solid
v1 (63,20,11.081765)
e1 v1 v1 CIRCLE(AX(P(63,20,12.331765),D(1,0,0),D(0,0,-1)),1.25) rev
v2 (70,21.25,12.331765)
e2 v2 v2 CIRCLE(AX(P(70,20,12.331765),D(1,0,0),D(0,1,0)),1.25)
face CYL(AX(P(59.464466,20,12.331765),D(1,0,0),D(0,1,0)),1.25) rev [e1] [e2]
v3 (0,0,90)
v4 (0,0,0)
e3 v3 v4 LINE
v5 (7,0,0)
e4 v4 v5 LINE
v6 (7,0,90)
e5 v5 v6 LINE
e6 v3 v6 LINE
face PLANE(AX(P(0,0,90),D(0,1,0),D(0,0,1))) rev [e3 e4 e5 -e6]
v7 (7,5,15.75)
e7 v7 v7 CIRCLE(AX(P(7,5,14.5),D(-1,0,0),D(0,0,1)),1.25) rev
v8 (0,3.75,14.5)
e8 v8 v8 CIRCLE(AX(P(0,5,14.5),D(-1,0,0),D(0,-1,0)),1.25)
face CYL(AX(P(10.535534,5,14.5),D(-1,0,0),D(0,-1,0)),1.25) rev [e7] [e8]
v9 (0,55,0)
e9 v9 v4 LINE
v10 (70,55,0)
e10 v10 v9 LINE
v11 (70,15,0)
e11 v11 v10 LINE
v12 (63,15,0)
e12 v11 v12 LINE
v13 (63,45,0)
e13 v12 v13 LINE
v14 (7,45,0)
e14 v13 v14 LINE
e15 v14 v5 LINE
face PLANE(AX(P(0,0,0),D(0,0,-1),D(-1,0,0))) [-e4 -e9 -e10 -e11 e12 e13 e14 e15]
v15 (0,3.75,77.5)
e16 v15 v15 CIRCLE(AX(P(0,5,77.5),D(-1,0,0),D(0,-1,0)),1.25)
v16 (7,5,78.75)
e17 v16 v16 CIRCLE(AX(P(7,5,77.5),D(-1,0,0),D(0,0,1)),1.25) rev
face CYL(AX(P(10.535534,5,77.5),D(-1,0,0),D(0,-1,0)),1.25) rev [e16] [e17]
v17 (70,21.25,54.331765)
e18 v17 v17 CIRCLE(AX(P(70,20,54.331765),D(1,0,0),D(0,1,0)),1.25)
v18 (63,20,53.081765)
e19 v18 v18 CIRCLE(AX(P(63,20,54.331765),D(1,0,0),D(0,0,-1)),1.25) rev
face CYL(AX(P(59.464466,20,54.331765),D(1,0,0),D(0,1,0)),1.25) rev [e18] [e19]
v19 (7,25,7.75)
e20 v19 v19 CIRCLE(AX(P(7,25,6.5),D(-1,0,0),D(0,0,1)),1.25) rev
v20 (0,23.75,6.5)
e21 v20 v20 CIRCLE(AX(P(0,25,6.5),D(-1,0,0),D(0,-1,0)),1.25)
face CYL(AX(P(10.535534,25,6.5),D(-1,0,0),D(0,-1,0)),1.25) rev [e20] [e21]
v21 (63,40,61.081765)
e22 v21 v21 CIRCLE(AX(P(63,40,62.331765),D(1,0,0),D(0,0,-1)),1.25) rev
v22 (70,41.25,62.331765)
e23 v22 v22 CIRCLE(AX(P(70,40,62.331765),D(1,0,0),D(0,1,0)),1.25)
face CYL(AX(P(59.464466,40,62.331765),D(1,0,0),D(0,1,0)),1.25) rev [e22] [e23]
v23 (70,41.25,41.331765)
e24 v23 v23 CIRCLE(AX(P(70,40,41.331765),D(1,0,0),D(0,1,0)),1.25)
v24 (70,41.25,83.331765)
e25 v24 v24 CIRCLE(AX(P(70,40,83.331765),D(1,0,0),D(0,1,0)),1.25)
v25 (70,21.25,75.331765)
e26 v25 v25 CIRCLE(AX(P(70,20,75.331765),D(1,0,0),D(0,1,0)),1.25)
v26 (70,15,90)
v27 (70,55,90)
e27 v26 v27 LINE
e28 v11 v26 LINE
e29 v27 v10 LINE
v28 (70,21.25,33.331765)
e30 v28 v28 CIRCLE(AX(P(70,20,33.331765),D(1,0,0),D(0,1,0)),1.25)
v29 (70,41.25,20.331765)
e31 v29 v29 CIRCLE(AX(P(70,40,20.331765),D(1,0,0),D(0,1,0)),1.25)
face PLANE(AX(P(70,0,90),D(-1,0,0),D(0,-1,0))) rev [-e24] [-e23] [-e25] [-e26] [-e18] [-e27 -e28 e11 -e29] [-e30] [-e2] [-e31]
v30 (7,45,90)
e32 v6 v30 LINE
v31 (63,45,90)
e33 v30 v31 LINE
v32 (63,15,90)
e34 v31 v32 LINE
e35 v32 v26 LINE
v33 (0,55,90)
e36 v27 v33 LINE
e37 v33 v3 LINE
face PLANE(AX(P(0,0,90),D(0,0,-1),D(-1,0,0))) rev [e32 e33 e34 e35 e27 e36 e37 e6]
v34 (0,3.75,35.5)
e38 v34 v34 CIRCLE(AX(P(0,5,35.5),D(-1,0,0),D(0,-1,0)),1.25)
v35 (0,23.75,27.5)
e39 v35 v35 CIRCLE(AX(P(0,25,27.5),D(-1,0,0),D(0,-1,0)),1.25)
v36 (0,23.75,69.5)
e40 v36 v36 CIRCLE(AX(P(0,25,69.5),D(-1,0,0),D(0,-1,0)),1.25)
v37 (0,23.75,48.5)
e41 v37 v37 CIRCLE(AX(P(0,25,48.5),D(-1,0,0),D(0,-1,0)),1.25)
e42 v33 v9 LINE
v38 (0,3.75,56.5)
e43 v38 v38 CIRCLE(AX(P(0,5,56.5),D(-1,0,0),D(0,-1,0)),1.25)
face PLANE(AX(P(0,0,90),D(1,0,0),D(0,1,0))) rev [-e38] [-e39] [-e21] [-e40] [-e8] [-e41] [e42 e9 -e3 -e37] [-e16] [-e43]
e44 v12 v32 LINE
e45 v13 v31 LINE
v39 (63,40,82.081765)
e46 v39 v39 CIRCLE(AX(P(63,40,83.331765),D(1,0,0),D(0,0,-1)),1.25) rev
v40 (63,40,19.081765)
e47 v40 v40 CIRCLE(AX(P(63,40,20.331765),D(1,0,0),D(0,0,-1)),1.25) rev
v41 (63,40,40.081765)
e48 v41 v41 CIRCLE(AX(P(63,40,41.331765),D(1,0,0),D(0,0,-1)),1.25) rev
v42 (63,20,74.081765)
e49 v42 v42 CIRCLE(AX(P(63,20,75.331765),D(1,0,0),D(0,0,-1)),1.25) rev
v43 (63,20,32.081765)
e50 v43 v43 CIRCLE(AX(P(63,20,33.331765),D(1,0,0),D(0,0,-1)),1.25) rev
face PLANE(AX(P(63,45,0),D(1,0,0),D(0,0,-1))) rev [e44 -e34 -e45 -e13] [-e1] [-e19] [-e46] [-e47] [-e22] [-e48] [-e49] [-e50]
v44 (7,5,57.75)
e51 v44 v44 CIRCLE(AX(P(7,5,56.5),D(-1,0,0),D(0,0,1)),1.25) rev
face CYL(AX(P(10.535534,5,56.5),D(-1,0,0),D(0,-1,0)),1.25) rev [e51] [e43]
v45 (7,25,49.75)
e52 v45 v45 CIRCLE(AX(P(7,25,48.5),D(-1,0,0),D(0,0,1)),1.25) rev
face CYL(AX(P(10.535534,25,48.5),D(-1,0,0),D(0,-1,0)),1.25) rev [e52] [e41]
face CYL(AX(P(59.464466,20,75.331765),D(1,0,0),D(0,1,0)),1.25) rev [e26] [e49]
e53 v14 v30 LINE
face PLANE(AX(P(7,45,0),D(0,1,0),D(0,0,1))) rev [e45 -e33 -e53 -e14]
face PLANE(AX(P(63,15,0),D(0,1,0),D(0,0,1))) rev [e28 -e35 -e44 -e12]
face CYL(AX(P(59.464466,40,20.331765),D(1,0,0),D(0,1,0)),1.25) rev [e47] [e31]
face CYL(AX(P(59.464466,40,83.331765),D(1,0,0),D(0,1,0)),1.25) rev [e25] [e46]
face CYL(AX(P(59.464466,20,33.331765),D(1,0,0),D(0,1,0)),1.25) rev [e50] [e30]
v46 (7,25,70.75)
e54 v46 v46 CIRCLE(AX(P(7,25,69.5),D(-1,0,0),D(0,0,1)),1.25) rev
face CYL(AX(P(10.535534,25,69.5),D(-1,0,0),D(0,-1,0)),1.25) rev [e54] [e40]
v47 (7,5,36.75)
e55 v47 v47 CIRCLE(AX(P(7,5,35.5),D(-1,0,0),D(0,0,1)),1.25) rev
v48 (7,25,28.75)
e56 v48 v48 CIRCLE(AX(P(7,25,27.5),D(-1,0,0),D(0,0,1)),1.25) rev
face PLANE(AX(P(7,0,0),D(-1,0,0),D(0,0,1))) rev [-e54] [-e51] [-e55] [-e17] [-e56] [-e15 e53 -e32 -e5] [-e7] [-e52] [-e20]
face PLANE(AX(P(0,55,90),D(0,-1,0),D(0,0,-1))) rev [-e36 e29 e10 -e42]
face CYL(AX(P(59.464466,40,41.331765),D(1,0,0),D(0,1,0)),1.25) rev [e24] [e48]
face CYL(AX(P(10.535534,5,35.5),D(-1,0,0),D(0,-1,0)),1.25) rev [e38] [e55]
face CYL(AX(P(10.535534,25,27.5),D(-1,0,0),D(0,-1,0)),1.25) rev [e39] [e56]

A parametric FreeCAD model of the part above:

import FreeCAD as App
import Part
import Sketcher
from FreeCAD import Vector
Q = App.Units.Quantity


def add_polygon(sketch, points):
    """Adds a closed chain of lines whose ends are joined by coincident constraints."""
    first, n = sketch.GeometryCount, len(points)
    for a, b in zip(points, points[1:] + points[:1]):
        sketch.addGeometry(Part.LineSegment(App.Vector(*a, 0), App.Vector(*b, 0)), False)
    for i in range(n):
        sketch.addConstraint(Sketcher.Constraint("Coincident", first + i, 2, first + (i + 1) % n, 1))

doc = App.newDocument("Part")
body = doc.addObject("PartDesign::Body", "Body")

# Sketch on XY plane
sketch1 = body.newObject("Sketcher::SketchObject", "Sketch")
sketch1.AttachmentSupport = (doc.getObject("XY_Plane"), [""])
sketch1.MapMode = "FlatFace"
add_polygon(sketch1, [(0, 55), (0, 0), (70, 0), (70, 55)])  # lines 0-3
sketch1.addConstraint([
    Sketcher.Constraint("Vertical", 0),
    Sketcher.Constraint("Horizontal", 1),
    Sketcher.Constraint("Vertical", 2),
    Sketcher.Constraint("Horizontal", 3),
    Sketcher.Constraint("Coincident", 0, 2, -1, 1),
    Sketcher.Constraint("DistanceX", 1, 1, 1, 2, Q("70 mm")),
    Sketcher.Constraint("DistanceY", 0, 2, 0, 1, Q("55 mm")),
])
pad1 = body.newObject("PartDesign::Pad", "Pad")
pad1.Profile = sketch1
pad1.Length = 90

# Sketch on XY plane
sketch2 = body.newObject("Sketcher::SketchObject", "Sketch001")
sketch2.AttachmentSupport = (doc.getObject("XY_Plane"), [""])
sketch2.MapMode = "FlatFace"
sketch2.AttachmentOffset = App.Placement(Vector(0, 0, 90), App.Rotation())
add_polygon(sketch2, [(7, 45), (7, 0), (70, 0), (70, 15), (63, 15), (63, 45)])  # lines 0-5
sketch2.addConstraint([
    Sketcher.Constraint("Vertical", 0),
    Sketcher.Constraint("Horizontal", 1),
    Sketcher.Constraint("Vertical", 2),
    Sketcher.Constraint("Horizontal", 3),
    Sketcher.Constraint("Vertical", 4),
    Sketcher.Constraint("Horizontal", 5),
    Sketcher.Constraint("PointOnObject", 0, 2, -1),
    Sketcher.Constraint("DistanceX", 1, 1, 1, 2, Q("63 mm")),
    Sketcher.Constraint("DistanceX", 3, 2, 3, 1, Q("7 mm")),
    Sketcher.Constraint("DistanceY", 0, 2, 0, 1, Q("45 mm")),
    Sketcher.Constraint("DistanceY", 2, 1, 2, 2, Q("15 mm")),
    Sketcher.Constraint("DistanceX", -1, 1, 0, 2, Q("7 mm")),
])
pocket1 = body.newObject("PartDesign::Pocket", "Pocket")
pocket1.Profile = sketch2
pocket1.Type = "ThroughAll"
pocket1.Midplane = True

# Sketch on YZ plane
sketch3 = body.newObject("Sketcher::SketchObject", "Sketch002")
sketch3.AttachmentSupport = (doc.getObject("YZ_Plane"), [""])
sketch3.MapMode = "FlatFace"
sketch3.addGeometry([
    Part.Circle(Vector(25, 6.5, 0), Vector(0, 0, 1), 1.2),  # 0
    Part.Circle(Vector(5, 14.5, 0), Vector(0, 0, 1), 1.2),  # 1
    Part.Circle(Vector(25, 27.5, 0), Vector(0, 0, 1), 1.2),  # 2
    Part.Circle(Vector(5, 35.5, 0), Vector(0, 0, 1), 1.2),  # 3
    Part.Circle(Vector(25, 48.5, 0), Vector(0, 0, 1), 1.2),  # 4
    Part.Circle(Vector(5, 56.5, 0), Vector(0, 0, 1), 1.2),  # 5
    Part.Circle(Vector(25, 69.5, 0), Vector(0, 0, 1), 1.2),  # 6
    Part.Circle(Vector(5, 77.5, 0), Vector(0, 0, 1), 1.2),  # 7
], False)
sketch3.addConstraint([
    Sketcher.Constraint("Equal", 0, 1),
    Sketcher.Constraint("Equal", 1, 2),
    Sketcher.Constraint("Equal", 2, 3),
    Sketcher.Constraint("Equal", 3, 4),
    Sketcher.Constraint("Equal", 4, 5),
    Sketcher.Constraint("Equal", 5, 6),
    Sketcher.Constraint("Equal", 6, 7),
    Sketcher.Constraint("Vertical", 0, 3, 2, 3),
    Sketcher.Constraint("Vertical", 1, 3, 3, 3),
    Sketcher.Constraint("Vertical", 2, 3, 4, 3),
    Sketcher.Constraint("Vertical", 3, 3, 5, 3),
    Sketcher.Constraint("Vertical", 4, 3, 6, 3),
    Sketcher.Constraint("Vertical", 5, 3, 7, 3),
    Sketcher.Constraint("Diameter", 0, Q("2.5 mm")),
    Sketcher.Constraint("DistanceX", -1, 1, 0, 3, Q("25 mm")),
    Sketcher.Constraint("DistanceX", -1, 1, 1, 3, Q("5 mm")),
    Sketcher.Constraint("DistanceY", 0, 3, 1, 3, Q("8 mm")),
    Sketcher.Constraint("DistanceY", 0, 3, 2, 3, Q("21 mm")),
    Sketcher.Constraint("DistanceY", 1, 3, 3, 3, Q("21 mm")),
    Sketcher.Constraint("DistanceY", 2, 3, 4, 3, Q("21 mm")),
    Sketcher.Constraint("DistanceY", 3, 3, 5, 3, Q("21 mm")),
    Sketcher.Constraint("DistanceY", 4, 3, 6, 3, Q("21 mm")),
    Sketcher.Constraint("DistanceY", 5, 3, 7, 3, Q("21 mm")),
    Sketcher.Constraint("DistanceY", -1, 1, 0, 3, Q("6.5 mm")),
])
pocket2 = body.newObject("PartDesign::Pocket", "Pocket001")
pocket2.Profile = sketch3
pocket2.Length = 7
pocket2.Reversed = True

# Sketch on YZ plane
sketch4 = body.newObject("Sketcher::SketchObject", "Sketch003")
sketch4.AttachmentSupport = (doc.getObject("YZ_Plane"), [""])
sketch4.MapMode = "FlatFace"
sketch4.AttachmentOffset = App.Placement(Vector(0, 0, 70), App.Rotation())
sketch4.addGeometry([
    Part.Circle(Vector(40, 83.3, 0), Vector(0, 0, 1), 1.2),  # 0
    Part.Circle(Vector(20, 75.3, 0), Vector(0, 0, 1), 1.2),  # 1
    Part.Circle(Vector(40, 62.3, 0), Vector(0, 0, 1), 1.2),  # 2
    Part.Circle(Vector(20, 54.3, 0), Vector(0, 0, 1), 1.2),  # 3
    Part.Circle(Vector(40, 41.3, 0), Vector(0, 0, 1), 1.2),  # 4
    Part.Circle(Vector(20, 33.3, 0), Vector(0, 0, 1), 1.2),  # 5
    Part.Circle(Vector(40, 20.3, 0), Vector(0, 0, 1), 1.2),  # 6
    Part.Circle(Vector(20, 12.3, 0), Vector(0, 0, 1), 1.2),  # 7
], False)
sketch4.addConstraint([
    Sketcher.Constraint("Equal", 0, 1),
    Sketcher.Constraint("Equal", 1, 2),
    Sketcher.Constraint("Equal", 2, 3),
    Sketcher.Constraint("Equal", 3, 4),
    Sketcher.Constraint("Equal", 4, 5),
    Sketcher.Constraint("Equal", 5, 6),
    Sketcher.Constraint("Equal", 6, 7),
    Sketcher.Constraint("Vertical", 0, 3, 2, 3),
    Sketcher.Constraint("Vertical", 1, 3, 3, 3),
    Sketcher.Constraint("Vertical", 2, 3, 4, 3),
    Sketcher.Constraint("Vertical", 3, 3, 5, 3),
    Sketcher.Constraint("Vertical", 4, 3, 6, 3),
    Sketcher.Constraint("Vertical", 5, 3, 7, 3),
    Sketcher.Constraint("Diameter", 0, Q("2.5 mm")),
    Sketcher.Constraint("DistanceX", -1, 1, 0, 3, Q("40 mm")),
    Sketcher.Constraint("DistanceX", -1, 1, 1, 3, Q("20 mm")),
    Sketcher.Constraint("DistanceY", 1, 3, 0, 3, Q("8 mm")),
    Sketcher.Constraint("DistanceY", 2, 3, 0, 3, Q("21 mm")),
    Sketcher.Constraint("DistanceY", 3, 3, 1, 3, Q("21 mm")),
    Sketcher.Constraint("DistanceY", 4, 3, 2, 3, Q("21 mm")),
    Sketcher.Constraint("DistanceY", 5, 3, 3, 3, Q("21 mm")),
    Sketcher.Constraint("DistanceY", 6, 3, 4, 3, Q("21 mm")),
    Sketcher.Constraint("DistanceY", 7, 3, 5, 3, Q("21 mm")),
    Sketcher.Constraint("DistanceY", -1, 1, 0, 3, Q("83.331765 mm")),
])
pocket3 = body.newObject("PartDesign::Pocket", "Pocket002")
pocket3.Profile = sketch4
pocket3.Length = 7

doc.recompute()
